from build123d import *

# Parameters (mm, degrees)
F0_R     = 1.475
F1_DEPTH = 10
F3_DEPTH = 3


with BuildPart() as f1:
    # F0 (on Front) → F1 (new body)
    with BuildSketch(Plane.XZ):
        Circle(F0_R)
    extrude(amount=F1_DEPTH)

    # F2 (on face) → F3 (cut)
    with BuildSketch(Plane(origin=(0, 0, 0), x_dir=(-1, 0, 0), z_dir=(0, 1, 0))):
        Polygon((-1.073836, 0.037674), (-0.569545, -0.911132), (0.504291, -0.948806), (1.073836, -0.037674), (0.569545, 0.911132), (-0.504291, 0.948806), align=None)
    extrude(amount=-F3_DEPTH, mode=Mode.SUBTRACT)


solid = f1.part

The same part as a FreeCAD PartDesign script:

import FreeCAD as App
import Part
import Sketcher
Q = App.Units.Quantity

doc = App.newDocument("Part")
body = doc.addObject("PartDesign::Body", "Body")

sketch1 = body.newObject("Sketcher::SketchObject", "Sketch")
sketch1.AttachmentSupport = (doc.getObject("XZ_Plane"), [""])
sketch1.MapMode = "FlatFace"
sketch1.addGeometry(Part.Circle(App.Vector(0, 0, 0), App.Vector(0, 0, 1), 1.5), False)
sketch1.addConstraint(Sketcher.Constraint("Coincident", 0, 3, -1, 1))
sketch1.addConstraint(Sketcher.Constraint("Diameter", 0, Q("2.95 mm")))
pad1 = body.newObject("PartDesign::Pad", "Pad")
pad1.Profile = sketch1
pad1.Length = 10

sketch2 = body.newObject("Sketcher::SketchObject", "Sketch001")
sketch2.AttachmentSupport = (doc.getObject("XZ_Plane"), [""])
sketch2.MapMode = "FlatFace"
sketch2.addGeometry(Part.LineSegment(App.Vector(1.1, 0, 0), App.Vector(0.6, -0.9, 0)), False)
sketch2.addGeometry(Part.LineSegment(App.Vector(0.6, -0.9, 0), App.Vector(-0.5, -0.9, 0)), False)
sketch2.addGeometry(Part.LineSegment(App.Vector(-0.5, -0.9, 0), App.Vector(-1.1, 0, 0)), False)
sketch2.addGeometry(Part.LineSegment(App.Vector(-1.1, 0, 0), App.Vector(-0.6, 0.9, 0)), False)
sketch2.addGeometry(Part.LineSegment(App.Vector(-0.6, 0.9, 0), App.Vector(0.5, 0.9, 0)), False)
sketch2.addGeometry(Part.LineSegment(App.Vector(0.5, 0.9, 0), App.Vector(1.1, 0, 0)), False)
sketch2.addConstraint(Sketcher.Constraint("Coincident", 0, 2, 1, 1))
sketch2.addConstraint(Sketcher.Constraint("Coincident", 1, 2, 2, 1))
sketch2.addConstraint(Sketcher.Constraint("Coincident", 2, 2, 3, 1))
sketch2.addConstraint(Sketcher.Constraint("Coincident", 3, 2, 4, 1))
sketch2.addConstraint(Sketcher.Constraint("Coincident", 4, 2, 5, 1))
sketch2.addConstraint(Sketcher.Constraint("Coincident", 5, 2, 0, 1))
sketch2.addConstraint(Sketcher.Constraint("Symmetric", 0, 2, 3, 2, -1, 1))
sketch2.addConstraint(Sketcher.Constraint("Symmetric", 1, 2, 4, 2, -1, 1))
sketch2.addConstraint(Sketcher.Constraint("Symmetric", 2, 2, 5, 2, -1, 1))
sketch2.addConstraint(Sketcher.Constraint("Equal", 0, 1))
sketch2.addConstraint(Sketcher.Constraint("Equal", 1, 2))
sketch2.addConstraint(Sketcher.Constraint("DistanceX", 1, 2, -1, 1, Q("0.504291 mm")))
sketch2.addConstraint(Sketcher.Constraint("DistanceX", 2, 2, 0, 2, Q("1.643381 mm")))
sketch2.addConstraint(Sketcher.Constraint("DistanceY", 0, 2, 2, 2, Q("0.873458 mm")))
sketch2.addConstraint(Sketcher.Constraint("DistanceX", 2, 2, 3, 2, Q("0.504291 mm")))
pocket1 = body.newObject("PartDesign::Pocket", "Pocket")
pocket1.Profile = sketch2
pocket1.Length = 3
pocket1.Reversed = True

doc.recompute()
